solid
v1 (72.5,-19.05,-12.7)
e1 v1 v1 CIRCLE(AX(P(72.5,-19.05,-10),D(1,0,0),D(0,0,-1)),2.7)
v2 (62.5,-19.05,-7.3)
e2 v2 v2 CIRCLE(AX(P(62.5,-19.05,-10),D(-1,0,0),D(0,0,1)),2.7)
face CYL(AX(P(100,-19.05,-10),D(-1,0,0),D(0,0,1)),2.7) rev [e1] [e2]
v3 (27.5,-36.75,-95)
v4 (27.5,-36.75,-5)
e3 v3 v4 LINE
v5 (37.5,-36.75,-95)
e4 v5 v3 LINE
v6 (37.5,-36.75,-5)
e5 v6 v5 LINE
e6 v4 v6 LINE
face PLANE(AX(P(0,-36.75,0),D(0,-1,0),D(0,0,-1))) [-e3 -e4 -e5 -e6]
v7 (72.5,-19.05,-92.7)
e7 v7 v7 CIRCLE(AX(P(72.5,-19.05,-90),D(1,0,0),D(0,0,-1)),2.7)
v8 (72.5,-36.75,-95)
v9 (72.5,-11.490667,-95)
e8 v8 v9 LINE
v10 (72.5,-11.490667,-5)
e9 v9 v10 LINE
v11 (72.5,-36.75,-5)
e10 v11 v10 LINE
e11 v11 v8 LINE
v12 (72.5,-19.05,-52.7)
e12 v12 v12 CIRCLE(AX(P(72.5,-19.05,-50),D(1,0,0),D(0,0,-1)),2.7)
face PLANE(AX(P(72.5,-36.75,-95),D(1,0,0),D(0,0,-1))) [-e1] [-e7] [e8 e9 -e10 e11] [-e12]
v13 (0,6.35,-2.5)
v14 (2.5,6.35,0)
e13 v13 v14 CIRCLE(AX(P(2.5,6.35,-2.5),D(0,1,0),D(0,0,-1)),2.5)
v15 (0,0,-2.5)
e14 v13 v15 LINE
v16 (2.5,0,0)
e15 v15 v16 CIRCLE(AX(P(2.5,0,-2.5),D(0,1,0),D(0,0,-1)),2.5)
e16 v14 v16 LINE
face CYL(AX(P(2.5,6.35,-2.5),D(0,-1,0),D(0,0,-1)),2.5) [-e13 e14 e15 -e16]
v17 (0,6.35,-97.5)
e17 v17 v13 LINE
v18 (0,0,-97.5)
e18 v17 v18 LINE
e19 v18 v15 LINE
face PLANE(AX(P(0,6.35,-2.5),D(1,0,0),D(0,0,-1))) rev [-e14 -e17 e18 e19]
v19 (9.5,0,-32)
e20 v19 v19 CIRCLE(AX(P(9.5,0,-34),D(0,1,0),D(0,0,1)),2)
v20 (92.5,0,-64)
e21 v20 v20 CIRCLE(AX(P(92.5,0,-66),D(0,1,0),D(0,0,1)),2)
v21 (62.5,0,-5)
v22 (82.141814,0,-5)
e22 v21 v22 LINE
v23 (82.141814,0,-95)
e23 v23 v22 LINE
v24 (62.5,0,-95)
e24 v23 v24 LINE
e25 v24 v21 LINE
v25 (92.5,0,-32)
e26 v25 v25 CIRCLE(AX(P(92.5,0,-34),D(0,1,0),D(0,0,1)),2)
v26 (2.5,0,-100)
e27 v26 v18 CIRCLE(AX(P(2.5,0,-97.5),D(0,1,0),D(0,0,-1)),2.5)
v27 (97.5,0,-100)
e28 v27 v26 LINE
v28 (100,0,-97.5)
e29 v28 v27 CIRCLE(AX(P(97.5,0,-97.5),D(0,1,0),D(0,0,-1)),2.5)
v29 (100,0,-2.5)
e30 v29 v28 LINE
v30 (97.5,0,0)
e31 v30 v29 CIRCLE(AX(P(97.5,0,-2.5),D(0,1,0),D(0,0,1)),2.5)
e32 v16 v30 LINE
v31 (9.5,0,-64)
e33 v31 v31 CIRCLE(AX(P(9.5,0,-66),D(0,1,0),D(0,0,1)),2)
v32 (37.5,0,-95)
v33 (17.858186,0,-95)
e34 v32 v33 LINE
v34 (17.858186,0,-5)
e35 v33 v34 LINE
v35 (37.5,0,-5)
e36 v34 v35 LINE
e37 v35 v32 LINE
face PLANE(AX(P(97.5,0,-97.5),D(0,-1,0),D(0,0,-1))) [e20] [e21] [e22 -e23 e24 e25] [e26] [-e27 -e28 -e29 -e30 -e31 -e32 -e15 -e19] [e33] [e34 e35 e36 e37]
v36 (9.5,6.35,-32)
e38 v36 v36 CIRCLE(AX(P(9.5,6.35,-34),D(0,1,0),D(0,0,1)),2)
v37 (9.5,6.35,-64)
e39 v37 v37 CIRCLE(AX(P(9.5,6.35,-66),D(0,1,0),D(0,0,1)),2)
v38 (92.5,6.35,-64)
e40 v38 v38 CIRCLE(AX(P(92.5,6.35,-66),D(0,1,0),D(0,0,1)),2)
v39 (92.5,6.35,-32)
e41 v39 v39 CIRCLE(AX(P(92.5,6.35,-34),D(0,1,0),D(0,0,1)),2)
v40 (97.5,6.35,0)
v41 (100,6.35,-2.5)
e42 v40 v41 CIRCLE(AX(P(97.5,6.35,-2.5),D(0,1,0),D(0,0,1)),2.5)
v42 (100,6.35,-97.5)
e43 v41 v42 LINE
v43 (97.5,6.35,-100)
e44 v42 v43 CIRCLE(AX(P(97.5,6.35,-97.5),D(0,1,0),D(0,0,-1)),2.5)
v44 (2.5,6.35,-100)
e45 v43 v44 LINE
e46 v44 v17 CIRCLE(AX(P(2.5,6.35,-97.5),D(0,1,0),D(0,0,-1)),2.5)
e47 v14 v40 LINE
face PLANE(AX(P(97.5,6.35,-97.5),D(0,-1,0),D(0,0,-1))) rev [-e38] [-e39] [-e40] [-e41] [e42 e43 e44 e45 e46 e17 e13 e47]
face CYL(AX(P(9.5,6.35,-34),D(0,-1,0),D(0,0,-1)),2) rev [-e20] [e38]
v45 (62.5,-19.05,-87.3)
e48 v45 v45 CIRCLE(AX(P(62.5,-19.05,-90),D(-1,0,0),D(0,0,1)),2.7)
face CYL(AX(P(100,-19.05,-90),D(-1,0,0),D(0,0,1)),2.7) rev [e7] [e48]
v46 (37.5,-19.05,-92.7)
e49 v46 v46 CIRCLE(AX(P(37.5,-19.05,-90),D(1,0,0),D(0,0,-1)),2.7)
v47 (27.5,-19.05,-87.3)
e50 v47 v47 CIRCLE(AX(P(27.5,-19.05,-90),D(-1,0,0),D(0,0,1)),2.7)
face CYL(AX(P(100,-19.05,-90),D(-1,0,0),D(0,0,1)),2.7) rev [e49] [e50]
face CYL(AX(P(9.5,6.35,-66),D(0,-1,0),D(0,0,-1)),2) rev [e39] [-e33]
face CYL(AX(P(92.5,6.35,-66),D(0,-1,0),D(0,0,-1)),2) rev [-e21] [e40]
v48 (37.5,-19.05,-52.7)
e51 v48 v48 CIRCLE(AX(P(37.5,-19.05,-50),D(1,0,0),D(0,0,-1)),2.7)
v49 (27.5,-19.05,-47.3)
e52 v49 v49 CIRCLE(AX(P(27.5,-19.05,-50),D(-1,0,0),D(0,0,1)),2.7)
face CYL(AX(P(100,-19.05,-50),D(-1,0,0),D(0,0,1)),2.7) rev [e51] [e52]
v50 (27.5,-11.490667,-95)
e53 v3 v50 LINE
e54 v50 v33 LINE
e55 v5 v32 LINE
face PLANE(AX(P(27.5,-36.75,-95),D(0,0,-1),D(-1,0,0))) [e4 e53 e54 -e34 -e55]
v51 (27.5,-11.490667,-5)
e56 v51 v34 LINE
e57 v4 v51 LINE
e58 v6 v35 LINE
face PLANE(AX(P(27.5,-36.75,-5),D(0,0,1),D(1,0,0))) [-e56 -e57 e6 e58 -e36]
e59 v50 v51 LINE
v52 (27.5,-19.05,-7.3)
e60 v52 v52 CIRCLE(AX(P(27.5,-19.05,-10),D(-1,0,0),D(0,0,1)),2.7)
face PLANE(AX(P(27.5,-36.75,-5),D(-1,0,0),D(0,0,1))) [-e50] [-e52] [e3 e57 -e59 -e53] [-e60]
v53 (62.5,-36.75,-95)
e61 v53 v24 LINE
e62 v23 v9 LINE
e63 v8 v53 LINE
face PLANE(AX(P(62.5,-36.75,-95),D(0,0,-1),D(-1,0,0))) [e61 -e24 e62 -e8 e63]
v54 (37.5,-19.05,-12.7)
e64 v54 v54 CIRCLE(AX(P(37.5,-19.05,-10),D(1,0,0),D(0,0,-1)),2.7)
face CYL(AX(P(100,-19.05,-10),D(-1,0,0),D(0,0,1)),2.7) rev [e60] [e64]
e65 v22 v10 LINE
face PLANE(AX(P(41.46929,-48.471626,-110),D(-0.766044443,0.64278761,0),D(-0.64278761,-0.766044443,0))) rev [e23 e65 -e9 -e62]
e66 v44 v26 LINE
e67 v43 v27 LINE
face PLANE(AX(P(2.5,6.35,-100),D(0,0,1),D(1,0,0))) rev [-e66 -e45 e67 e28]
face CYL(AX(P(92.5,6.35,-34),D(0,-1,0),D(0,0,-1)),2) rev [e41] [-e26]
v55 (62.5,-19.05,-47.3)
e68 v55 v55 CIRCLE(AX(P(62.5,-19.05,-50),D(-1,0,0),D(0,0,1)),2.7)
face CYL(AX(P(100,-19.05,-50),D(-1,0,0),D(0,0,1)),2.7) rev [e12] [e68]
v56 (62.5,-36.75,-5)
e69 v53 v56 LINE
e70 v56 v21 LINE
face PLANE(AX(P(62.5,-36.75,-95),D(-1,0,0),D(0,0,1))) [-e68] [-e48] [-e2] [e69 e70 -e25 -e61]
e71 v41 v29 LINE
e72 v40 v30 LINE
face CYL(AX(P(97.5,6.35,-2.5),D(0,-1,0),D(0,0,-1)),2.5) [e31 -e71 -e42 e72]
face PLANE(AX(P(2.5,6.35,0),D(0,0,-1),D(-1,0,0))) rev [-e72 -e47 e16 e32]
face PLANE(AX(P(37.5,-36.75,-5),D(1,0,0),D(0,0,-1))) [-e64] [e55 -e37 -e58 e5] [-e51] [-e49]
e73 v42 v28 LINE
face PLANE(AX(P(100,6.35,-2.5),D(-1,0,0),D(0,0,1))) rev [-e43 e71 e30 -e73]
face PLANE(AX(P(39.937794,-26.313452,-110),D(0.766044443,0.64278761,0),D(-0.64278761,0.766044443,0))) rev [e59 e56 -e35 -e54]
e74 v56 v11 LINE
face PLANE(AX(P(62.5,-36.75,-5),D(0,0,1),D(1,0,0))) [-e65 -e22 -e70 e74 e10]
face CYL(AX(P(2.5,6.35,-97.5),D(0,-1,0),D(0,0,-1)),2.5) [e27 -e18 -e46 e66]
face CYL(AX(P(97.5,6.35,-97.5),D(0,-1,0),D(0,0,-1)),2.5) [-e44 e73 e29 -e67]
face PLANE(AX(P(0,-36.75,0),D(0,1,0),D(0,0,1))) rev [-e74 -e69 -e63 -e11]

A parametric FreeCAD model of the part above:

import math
import FreeCAD as App
import Part
import Sketcher
from FreeCAD import Vector
Q = App.Units.Quantity

doc = App.newDocument("Part")
body = doc.addObject("PartDesign::Body", "Body")

# Sketch on XZ plane
sketch1 = doc.addObject("Sketcher::SketchObject", "Sketch")
body.addObject(sketch1)
sketch1.AttachmentSupport = (doc.XZ_Plane, [""])
sketch1.MapMode = "FlatFace"
sketch1.addGeometry(Part.LineSegment(Vector(2.5, 0, 0), Vector(97.5, 0, 0)), False)
sketch1.addGeometry(Part.ArcOfCircle(Part.Circle(Vector(97.5, -2.5, 0), Vector(0, 0, 1), 2.5), math.radians(0), math.radians(90)), False)
sketch1.addGeometry(Part.LineSegment(Vector(100, -2.5, 0), Vector(100, -97.5, 0)), False)
sketch1.addGeometry(Part.ArcOfCircle(Part.Circle(Vector(97.5, -97.5, 0), Vector(0, 0, 1), 2.5), math.radians(-90), math.radians(0)), False)
sketch1.addGeometry(Part.LineSegment(Vector(97.5, -100, 0), Vector(2.5, -100, 0)), False)
sketch1.addGeometry(Part.ArcOfCircle(Part.Circle(Vector(2.5, -97.5, 0), Vector(0, 0, 1), 2.5), math.radians(180), math.radians(270)), False)
sketch1.addGeometry(Part.LineSegment(Vector(0, -97.5, 0), Vector(0, -2.5, 0)), False)
sketch1.addGeometry(Part.ArcOfCircle(Part.Circle(Vector(2.5, -2.5, 0), Vector(0, 0, 1), 2.5), math.radians(90), math.radians(180)), False)
sketch1.addGeometry(Part.Circle(Vector(9.5, -34, 0), Vector(0, 0, 1), 2), False)
sketch1.addGeometry(Part.Circle(Vector(92.5, -34, 0), Vector(0, 0, 1), 2), False)
sketch1.addGeometry(Part.Circle(Vector(9.5, -66, 0), Vector(0, 0, 1), 2), False)
sketch1.addGeometry(Part.Circle(Vector(92.5, -66, 0), Vector(0, 0, 1), 2), False)
sketch1.addConstraint(Sketcher.Constraint("Tangent", 0, 2, 1, 2))
sketch1.addConstraint(Sketcher.Constraint("Tangent", 1, 1, 2, 1))
sketch1.addConstraint(Sketcher.Constraint("Tangent", 2, 2, 3, 2))
sketch1.addConstraint(Sketcher.Constraint("Tangent", 3, 1, 4, 1))
sketch1.addConstraint(Sketcher.Constraint("Tangent", 4, 2, 5, 2))
sketch1.addConstraint(Sketcher.Constraint("Tangent", 5, 1, 6, 1))
sketch1.addConstraint(Sketcher.Constraint("Tangent", 6, 2, 7, 2))
sketch1.addConstraint(Sketcher.Constraint("Tangent", 7, 1, 0, 1))
sketch1.addConstraint(Sketcher.Constraint("Horizontal", 0))
sketch1.addConstraint(Sketcher.Constraint("Vertical", 2))
sketch1.addConstraint(Sketcher.Constraint("Horizontal", 4))
sketch1.addConstraint(Sketcher.Constraint("Vertical", 6))
sketch1.addConstraint(Sketcher.Constraint("Equal", 1, 3))
sketch1.addConstraint(Sketcher.Constraint("Equal", 3, 5))
sketch1.addConstraint(Sketcher.Constraint("Equal", 5, 7))
sketch1.addConstraint(Sketcher.Constraint("Equal", 8, 9))
sketch1.addConstraint(Sketcher.Constraint("Equal", 9, 10))
sketch1.addConstraint(Sketcher.Constraint("Equal", 10, 11))
sketch1.addConstraint(Sketcher.Constraint("PointOnObject", 0, 2, -1))
sketch1.addConstraint(Sketcher.Constraint("PointOnObject", 5, 1, -2))
sketch1.addConstraint(Sketcher.Constraint("Horizontal", 8, 3, 9, 3))
sketch1.addConstraint(Sketcher.Constraint("Horizontal", 10, 3, 11, 3))
sketch1.addConstraint(Sketcher.Constraint("Vertical", 8, 3, 10, 3))
sketch1.addConstraint(Sketcher.Constraint("Vertical", 9, 3, 11, 3))
sketch1.addConstraint(Sketcher.Constraint("Equal", 4, 2))
sketch1.addConstraint(Sketcher.Constraint("Diameter", 8, 4.0))
sketch1.addConstraint(Sketcher.Constraint("Radius", 1, 2.5))
sketch1.addConstraint(Sketcher.Constraint("DistanceX", 0, 1, 0, 2, 95.0))
sketch1.addConstraint(Sketcher.Constraint("DistanceY", 8, 3, -1, 1, 34.0))
sketch1.addConstraint(Sketcher.Constraint("DistanceY", 10, 3, -1, 1, 66.0))
sketch1.addConstraint(Sketcher.Constraint("DistanceX", 7, 3, 8, 3, 7.0))
sketch1.addConstraint(Sketcher.Constraint("DistanceX", 9, 3, 1, 3, 5.0))
pad1 = doc.addObject("PartDesign::Pad", "Pad")
body.addObject(pad1)
pad1.Profile = sketch1
pad1.Length = 6.35
pad1.Reversed = True

# Sketch on XZ plane
sketch2 = doc.addObject("Sketcher::SketchObject", "Sketch001")
body.addObject(sketch2)
sketch2.AttachmentSupport = (doc.XZ_Plane, [""])
sketch2.MapMode = "FlatFace"
sketch2.addGeometry(Part.LineSegment(Vector(27.5, -95, 0), Vector(27.5, -5, 0)), False)
sketch2.addGeometry(Part.LineSegment(Vector(27.5, -5, 0), Vector(37.5, -5, 0)), False)
sketch2.addGeometry(Part.LineSegment(Vector(37.5, -5, 0), Vector(37.5, -95, 0)), False)
sketch2.addGeometry(Part.LineSegment(Vector(37.5, -95, 0), Vector(27.5, -95, 0)), False)
sketch2.addGeometry(Part.LineSegment(Vector(62.5, -95, 0), Vector(62.5, -5, 0)), False)
sketch2.addGeometry(Part.LineSegment(Vector(62.5, -5, 0), Vector(72.5, -5, 0)), False)
sketch2.addGeometry(Part.LineSegment(Vector(72.5, -5, 0), Vector(72.5, -95, 0)), False)
sketch2.addGeometry(Part.LineSegment(Vector(72.5, -95, 0), Vector(62.5, -95, 0)), False)
sketch2.addConstraint(Sketcher.Constraint("Coincident", 0, 2, 1, 1))
sketch2.addConstraint(Sketcher.Constraint("Coincident", 1, 2, 2, 1))
sketch2.addConstraint(Sketcher.Constraint("Coincident", 2, 2, 3, 1))
sketch2.addConstraint(Sketcher.Constraint("Coincident", 3, 2, 0, 1))
sketch2.addConstraint(Sketcher.Constraint("Coincident", 4, 2, 5, 1))
sketch2.addConstraint(Sketcher.Constraint("Coincident", 5, 2, 6, 1))
sketch2.addConstraint(Sketcher.Constraint("Coincident", 6, 2, 7, 1))
sketch2.addConstraint(Sketcher.Constraint("Coincident", 7, 2, 4, 1))
sketch2.addConstraint(Sketcher.Constraint("Vertical", 0))
sketch2.addConstraint(Sketcher.Constraint("Horizontal", 1))
sketch2.addConstraint(Sketcher.Constraint("Vertical", 2))
sketch2.addConstraint(Sketcher.Constraint("Horizontal", 3))
sketch2.addConstraint(Sketcher.Constraint("Vertical", 4))
sketch2.addConstraint(Sketcher.Constraint("Horizontal", 5))
sketch2.addConstraint(Sketcher.Constraint("Vertical", 6))
sketch2.addConstraint(Sketcher.Constraint("Horizontal", 7))
sketch2.addConstraint(Sketcher.Constraint("Horizontal", 1, 2, 4, 2))
sketch2.addConstraint(Sketcher.Constraint("Horizontal", 3, 2, 6, 2))
sketch2.addConstraint(Sketcher.Constraint("Equal", 3, 5))
sketch2.addConstraint(Sketcher.Constraint("DistanceX", 1, 1, 1, 2, 10.0))
sketch2.addConstraint(Sketcher.Constraint("DistanceY", 0, 1, 0, 2, 90.0))
sketch2.addConstraint(Sketcher.Constraint("DistanceY", 0, 2, -1, 1, 5.0))
sketch2.addConstraint(Sketcher.Constraint("DistanceX", 1, 2, 4, 2, 25.0))
sketch2.addConstraint(Sketcher.Constraint("DistanceX", -1, 1, 0, 2, 27.5))
pad2 = doc.addObject("PartDesign::Pad", "Pad001")
body.addObject(pad2)
pad2.Profile = sketch2
pad2.Length = 36.75

# Sketch on YZ plane
sketch3 = doc.addObject("Sketcher::SketchObject", "Sketch002")
body.addObject(sketch3)
sketch3.AttachmentSupport = (doc.YZ_Plane, [""])
sketch3.MapMode = "FlatFace"
sketch3.AttachmentOffset = App.Placement(Vector(0, 0, 27.5), App.Rotation())
sketch3.addGeometry(Part.Circle(Vector(-19.05, -90, 0), Vector(0, 0, 1), 2.7), False)
sketch3.addGeometry(Part.Circle(Vector(-19.05, -50, 0), Vector(0, 0, 1), 2.7), False)
sketch3.addGeometry(Part.Circle(Vector(-19.05, -10, 0), Vector(0, 0, 1), 2.7), False)
sketch3.addConstraint(Sketcher.Constraint("Equal", 0, 1))
sketch3.addConstraint(Sketcher.Constraint("Equal", 1, 2))
sketch3.addConstraint(Sketcher.Constraint("Vertical", 0, 3, 1, 3))
sketch3.addConstraint(Sketcher.Constraint("Vertical", 1, 3, 2, 3))
sketch3.addConstraint(Sketcher.Constraint("Diameter", 0, 5.4))
sketch3.addConstraint(Sketcher.Constraint("DistanceY", 0, 3, -1, 1, 90.0))
sketch3.addConstraint(Sketcher.Constraint("DistanceY", 1, 3, -1, 1, 50.0))
sketch3.addConstraint(Sketcher.Constraint("DistanceY", 2, 3, -1, 1, 10.0))
sketch3.addConstraint(Sketcher.Constraint("DistanceX", 0, 3, -1, 1, 19.05))
pocket1 = doc.addObject("PartDesign::Pocket", "Pocket")
body.addObject(pocket1)
pocket1.Profile = sketch3
pocket1.Type = "ThroughAll"
pocket1.Reversed = True

# Sketch on XY plane
sketch4 = doc.addObject("Sketcher::SketchObject", "Sketch003")
body.addObject(sketch4)
sketch4.AttachmentSupport = (doc.XY_Plane, [""])
sketch4.MapMode = "FlatFace"
sketch4.AttachmentOffset = App.Placement(Vector(0, 0, -5), App.Rotation())
sketch4.addGeometry(Part.LineSegment(Vector(82.141814, 0, 0), Vector(72.5, 0, 0)), False)
sketch4.addGeometry(Part.LineSegment(Vector(72.5, 0, 0), Vector(72.5, -11.490667, 0)), False)
sketch4.addGeometry(Part.LineSegment(Vector(72.5, -11.490667, 0), Vector(82.141814, 0, 0)), False)
sketch4.addGeometry(Part.LineSegment(Vector(27.5, 0, 0), Vector(17.858186, 0, 0)), False)
sketch4.addGeometry(Part.LineSegment(Vector(17.858186, 0, 0), Vector(27.5, -11.490667, 0)), False)
sketch4.addGeometry(Part.LineSegment(Vector(27.5, -11.490667, 0), Vector(27.5, 0, 0)), False)
sketch4.addConstraint(Sketcher.Constraint("Coincident", 0, 2, 1, 1))
sketch4.addConstraint(Sketcher.Constraint("Coincident", 1, 2, 2, 1))
sketch4.addConstraint(Sketcher.Constraint("Coincident", 2, 2, 0, 1))
sketch4.addConstraint(Sketcher.Constraint("Coincident", 3, 2, 4, 1))
sketch4.addConstraint(Sketcher.Constraint("Coincident", 4, 2, 5, 1))
sketch4.addConstraint(Sketcher.Constraint("Coincident", 5, 2, 3, 1))
sketch4.addConstraint(Sketcher.Constraint("Horizontal", 0))
sketch4.addConstraint(Sketcher.Constraint("Vertical", 1))
sketch4.addConstraint(Sketcher.Constraint("Horizontal", 3))
sketch4.addConstraint(Sketcher.Constraint("Vertical", 5))
sketch4.addConstraint(Sketcher.Constraint("PointOnObject", 0, 2, -1))
sketch4.addConstraint(Sketcher.Constraint("PointOnObject", 3, 2, -1))
sketch4.addConstraint(Sketcher.Constraint("Horizontal", 1, 2, 4, 2))
sketch4.addConstraint(Sketcher.Constraint("Equal", 0, 3))
sketch4.addConstraint(Sketcher.Constraint("Angle", 2, Q("50 deg")))
sketch4.addConstraint(Sketcher.Constraint("Distance", 2, 15.0))
sketch4.addConstraint(Sketcher.Constraint("DistanceX", 4, 2, 1, 2, 45.0))
sketch4.addConstraint(Sketcher.Constraint("DistanceX", -1, 1, 0, 2, 72.5))
pad3 = doc.addObject("PartDesign::Pad", "Pad002")
body.addObject(pad3)
pad3.Profile = sketch4
pad3.Length = 90
pad3.Reversed = True

doc.recompute()
